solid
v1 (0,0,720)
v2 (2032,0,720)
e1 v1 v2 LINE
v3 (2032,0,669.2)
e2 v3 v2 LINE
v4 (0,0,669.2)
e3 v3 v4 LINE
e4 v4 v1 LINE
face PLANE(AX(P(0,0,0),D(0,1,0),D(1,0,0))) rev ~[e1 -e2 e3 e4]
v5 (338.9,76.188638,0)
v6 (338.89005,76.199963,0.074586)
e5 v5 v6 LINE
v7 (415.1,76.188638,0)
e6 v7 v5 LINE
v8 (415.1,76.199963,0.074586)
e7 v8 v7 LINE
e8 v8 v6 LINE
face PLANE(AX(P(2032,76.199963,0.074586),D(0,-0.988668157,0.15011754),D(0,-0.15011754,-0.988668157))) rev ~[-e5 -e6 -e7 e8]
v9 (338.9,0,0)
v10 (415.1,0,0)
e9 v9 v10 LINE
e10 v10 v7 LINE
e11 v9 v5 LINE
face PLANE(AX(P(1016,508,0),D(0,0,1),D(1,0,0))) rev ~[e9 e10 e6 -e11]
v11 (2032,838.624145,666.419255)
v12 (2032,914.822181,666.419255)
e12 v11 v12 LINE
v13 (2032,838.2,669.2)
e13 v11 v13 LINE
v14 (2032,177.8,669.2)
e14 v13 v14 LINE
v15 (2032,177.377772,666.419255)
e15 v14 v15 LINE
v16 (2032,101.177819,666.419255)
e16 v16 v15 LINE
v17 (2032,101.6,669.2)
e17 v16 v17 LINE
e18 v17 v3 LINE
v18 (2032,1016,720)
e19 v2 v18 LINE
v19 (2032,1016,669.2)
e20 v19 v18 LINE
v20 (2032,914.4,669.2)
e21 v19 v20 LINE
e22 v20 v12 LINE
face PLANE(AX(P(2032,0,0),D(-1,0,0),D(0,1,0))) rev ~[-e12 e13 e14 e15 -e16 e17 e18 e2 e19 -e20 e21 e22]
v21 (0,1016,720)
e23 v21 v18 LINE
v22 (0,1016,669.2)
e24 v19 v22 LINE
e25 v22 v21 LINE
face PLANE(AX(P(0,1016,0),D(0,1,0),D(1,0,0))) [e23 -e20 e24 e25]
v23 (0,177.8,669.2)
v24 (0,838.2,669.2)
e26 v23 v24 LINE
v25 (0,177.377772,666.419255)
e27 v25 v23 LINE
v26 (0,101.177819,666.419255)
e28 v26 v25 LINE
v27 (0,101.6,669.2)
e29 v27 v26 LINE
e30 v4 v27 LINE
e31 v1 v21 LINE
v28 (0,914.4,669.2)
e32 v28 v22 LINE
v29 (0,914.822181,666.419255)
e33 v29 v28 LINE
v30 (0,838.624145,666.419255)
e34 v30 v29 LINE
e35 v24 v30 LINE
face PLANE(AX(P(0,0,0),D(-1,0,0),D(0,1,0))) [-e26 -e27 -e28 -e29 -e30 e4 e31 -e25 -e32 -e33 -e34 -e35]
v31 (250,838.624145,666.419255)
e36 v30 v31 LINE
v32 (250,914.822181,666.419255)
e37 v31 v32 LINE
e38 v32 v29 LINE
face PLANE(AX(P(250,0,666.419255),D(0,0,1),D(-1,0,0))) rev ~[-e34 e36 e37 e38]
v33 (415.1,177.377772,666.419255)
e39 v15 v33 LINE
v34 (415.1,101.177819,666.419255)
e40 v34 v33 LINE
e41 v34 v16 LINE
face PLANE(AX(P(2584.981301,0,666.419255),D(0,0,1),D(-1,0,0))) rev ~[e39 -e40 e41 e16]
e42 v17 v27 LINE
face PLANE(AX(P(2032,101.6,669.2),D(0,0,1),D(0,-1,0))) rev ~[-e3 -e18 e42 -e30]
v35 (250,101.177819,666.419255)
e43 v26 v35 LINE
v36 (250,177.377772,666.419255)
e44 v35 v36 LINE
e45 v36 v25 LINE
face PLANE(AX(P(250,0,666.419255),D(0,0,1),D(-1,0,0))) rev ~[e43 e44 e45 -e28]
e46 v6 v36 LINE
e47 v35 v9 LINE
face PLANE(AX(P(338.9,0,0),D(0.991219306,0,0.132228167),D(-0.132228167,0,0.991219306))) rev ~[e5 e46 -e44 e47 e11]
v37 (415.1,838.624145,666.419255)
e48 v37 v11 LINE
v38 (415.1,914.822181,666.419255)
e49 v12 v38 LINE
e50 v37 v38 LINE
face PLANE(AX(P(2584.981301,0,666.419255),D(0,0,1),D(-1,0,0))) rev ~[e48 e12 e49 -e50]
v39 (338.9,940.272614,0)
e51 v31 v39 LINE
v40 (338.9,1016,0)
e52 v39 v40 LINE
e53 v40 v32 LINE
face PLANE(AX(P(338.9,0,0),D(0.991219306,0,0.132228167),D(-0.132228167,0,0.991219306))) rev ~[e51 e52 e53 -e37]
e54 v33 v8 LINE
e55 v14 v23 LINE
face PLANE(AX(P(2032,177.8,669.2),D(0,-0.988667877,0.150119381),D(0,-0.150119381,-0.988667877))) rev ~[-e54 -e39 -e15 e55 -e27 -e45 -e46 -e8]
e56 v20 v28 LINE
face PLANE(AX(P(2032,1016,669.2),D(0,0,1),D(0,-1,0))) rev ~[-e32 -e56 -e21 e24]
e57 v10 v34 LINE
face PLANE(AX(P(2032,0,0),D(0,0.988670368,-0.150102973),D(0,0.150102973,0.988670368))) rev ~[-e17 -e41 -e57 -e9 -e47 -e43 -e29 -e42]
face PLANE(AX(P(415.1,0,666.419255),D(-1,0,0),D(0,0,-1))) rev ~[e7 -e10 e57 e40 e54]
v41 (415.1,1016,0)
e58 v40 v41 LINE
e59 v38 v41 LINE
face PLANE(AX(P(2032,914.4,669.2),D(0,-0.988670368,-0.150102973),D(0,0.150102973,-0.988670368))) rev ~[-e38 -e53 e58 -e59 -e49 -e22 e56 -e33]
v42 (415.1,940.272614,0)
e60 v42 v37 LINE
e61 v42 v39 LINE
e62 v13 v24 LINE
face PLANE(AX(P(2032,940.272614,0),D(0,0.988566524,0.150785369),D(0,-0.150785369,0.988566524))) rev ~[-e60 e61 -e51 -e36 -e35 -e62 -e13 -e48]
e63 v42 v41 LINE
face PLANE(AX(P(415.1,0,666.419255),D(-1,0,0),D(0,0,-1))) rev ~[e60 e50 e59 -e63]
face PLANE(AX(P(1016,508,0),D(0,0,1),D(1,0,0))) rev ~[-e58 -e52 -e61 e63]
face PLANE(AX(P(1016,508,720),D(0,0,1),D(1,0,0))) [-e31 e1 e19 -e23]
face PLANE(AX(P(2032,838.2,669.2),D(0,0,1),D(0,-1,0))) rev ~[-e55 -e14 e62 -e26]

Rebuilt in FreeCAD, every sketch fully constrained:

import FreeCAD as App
import Part
import Sketcher
Q = App.Units.Quantity

doc = App.newDocument("Part")
body = doc.addObject("PartDesign::Body", "Body")

sketch1 = body.newObject("Sketcher::SketchObject", "Sketch")
sketch1.AttachmentSupport = (doc.getObject("XY_Plane"), [""])
sketch1.MapMode = "FlatFace"
sketch1.addGeometry(Part.LineSegment(App.Vector(0, 1016, 0), App.Vector(0, 0, 0)), False)
sketch1.addGeometry(Part.LineSegment(App.Vector(0, 0, 0), App.Vector(2032, 0, 0)), False)
sketch1.addGeometry(Part.LineSegment(App.Vector(2032, 0, 0), App.Vector(2032, 1016, 0)), False)
sketch1.addGeometry(Part.LineSegment(App.Vector(2032, 1016, 0), App.Vector(0, 1016, 0)), False)
sketch1.addConstraint(Sketcher.Constraint("Coincident", 0, 2, 1, 1))
sketch1.addConstraint(Sketcher.Constraint("Coincident", 1, 2, 2, 1))
sketch1.addConstraint(Sketcher.Constraint("Coincident", 2, 2, 3, 1))
sketch1.addConstraint(Sketcher.Constraint("Coincident", 3, 2, 0, 1))
sketch1.addConstraint(Sketcher.Constraint("Vertical", 0))
sketch1.addConstraint(Sketcher.Constraint("Horizontal", 1))
sketch1.addConstraint(Sketcher.Constraint("Vertical", 2))
sketch1.addConstraint(Sketcher.Constraint("Horizontal", 3))
sketch1.addConstraint(Sketcher.Constraint("Coincident", 0, 2, -1, 1))
sketch1.addConstraint(Sketcher.Constraint("DistanceX", 1, 1, 1, 2, Q("80 in")))
sketch1.addConstraint(Sketcher.Constraint("DistanceY", 0, 2, 0, 1, Q("40 in")))
pad1 = body.newObject("PartDesign::Pad", "Pad")
pad1.Profile = sketch1
pad1.Length = 720

sketch2 = body.newObject("Sketcher::SketchObject", "Sketch001")
sketch2.AttachmentSupport = (doc.getObject("YZ_Plane"), [""])
sketch2.MapMode = "FlatFace"
sketch2.AttachmentOffset = App.Placement(App.Vector(0, 0, 80 * 25.4), App.Rotation())
sketch2.addGeometry(Part.LineSegment(App.Vector(76.2, 0.07, 0), App.Vector(76.19, 0, 0)), False)
sketch2.addGeometry(Part.LineSegment(App.Vector(76.19, 0, 0), App.Vector(940.27, 0, 0)), False)
sketch2.addGeometry(Part.LineSegment(App.Vector(940.27, 0, 0), App.Vector(838.2, 669.2, 0)), False)
sketch2.addGeometry(Part.LineSegment(App.Vector(838.2, 669.2, 0), App.Vector(177.8, 669.2, 0)), False)
sketch2.addGeometry(Part.LineSegment(App.Vector(177.8, 669.2, 0), App.Vector(76.2, 0.07, 0)), False)
sketch2.addGeometry(Part.LineSegment(App.Vector(101.6, 669.2, 0), App.Vector(0, 669.2, 0)), False)
sketch2.addGeometry(Part.LineSegment(App.Vector(0, 669.2, 0), App.Vector(0, 0, 0)), False)
sketch2.addGeometry(Part.LineSegment(App.Vector(0, 0, 0), App.Vector(101.6, 669.2, 0)), False)
sketch2.addGeometry(Part.LineSegment(App.Vector(1016, 0, 0), App.Vector(1016, 669.2, 0)), False)
sketch2.addGeometry(Part.LineSegment(App.Vector(1016, 669.2, 0), App.Vector(914.4, 669.2, 0)), False)
sketch2.addGeometry(Part.LineSegment(App.Vector(914.4, 669.2, 0), App.Vector(1016, 0, 0)), False)
sketch2.addConstraint(Sketcher.Constraint("Coincident", 0, 2, 1, 1))
sketch2.addConstraint(Sketcher.Constraint("Coincident", 1, 2, 2, 1))
sketch2.addConstraint(Sketcher.Constraint("Coincident", 2, 2, 3, 1))
sketch2.addConstraint(Sketcher.Constraint("Coincident", 3, 2, 4, 1))
sketch2.addConstraint(Sketcher.Constraint("Coincident", 4, 2, 0, 1))
sketch2.addConstraint(Sketcher.Constraint("Coincident", 5, 2, 6, 1))
sketch2.addConstraint(Sketcher.Constraint("Coincident", 6, 2, 7, 1))
sketch2.addConstraint(Sketcher.Constraint("Coincident", 7, 2, 5, 1))
sketch2.addConstraint(Sketcher.Constraint("Coincident", 8, 2, 9, 1))
sketch2.addConstraint(Sketcher.Constraint("Coincident", 9, 2, 10, 1))
sketch2.addConstraint(Sketcher.Constraint("Coincident", 10, 2, 8, 1))
sketch2.addConstraint(Sketcher.Constraint("Horizontal", 1))
sketch2.addConstraint(Sketcher.Constraint("Horizontal", 3))
sketch2.addConstraint(Sketcher.Constraint("Horizontal", 5))
sketch2.addConstraint(Sketcher.Constraint("Vertical", 6))
sketch2.addConstraint(Sketcher.Constraint("Vertical", 8))
sketch2.addConstraint(Sketcher.Constraint("Horizontal", 9))
sketch2.addConstraint(Sketcher.Constraint("Coincident", 6, 2, -1, 1))
sketch2.addConstraint(Sketcher.Constraint("PointOnObject", 0, 2, -1))
sketch2.addConstraint(Sketcher.Constraint("PointOnObject", 10, 2, -1))
sketch2.addConstraint(Sketcher.Constraint("Parallel", 0, 4))
sketch2.addConstraint(Sketcher.Constraint("Horizontal", 3, 2, 5, 2))
sketch2.addConstraint(Sketcher.Constraint("Horizontal", 7, 2, 8, 2))
sketch2.addConstraint(Sketcher.Constraint("Equal", 5, 9))
sketch2.addConstraint(Sketcher.Constraint("DistanceX", 3, 2, 3, 1, Q("26 in")))
sketch2.addConstraint(Sketcher.Constraint("DistanceX", 5, 2, 5, 1, Q("4 in")))
sketch2.addConstraint(Sketcher.Constraint("DistanceX", -1, 1, 2, 2, Q("33 in")))
sketch2.addConstraint(Sketcher.Constraint("DistanceX", -1, 1, 8, 2, Q("40 in")))
sketch2.addConstraint(Sketcher.Constraint("DistanceY", 6, 2, 6, 1, Q("669.2 mm")))
sketch2.addConstraint(Sketcher.Constraint("Distance", 0, Q("0.075441 mm")))
sketch2.addConstraint(Sketcher.Constraint("DistanceX", 1, 1, 1, 2, Q("864.083976 mm")))
sketch2.addConstraint(Sketcher.Constraint("DistanceX", 0, 2, 7, 2, Q("25.411362 mm")))
pocket1 = body.newObject("PartDesign::Pocket", "Pocket")
pocket1.Profile = sketch2
pocket1.Length = Q("150 in")

sketch3 = body.newObject("Sketcher::SketchObject", "Sketch002")
sketch3.AttachmentSupport = (doc.getObject("XZ_Plane"), [""])
sketch3.MapMode = "FlatFace"
sketch3.addGeometry(Part.LineSegment(App.Vector(415, 0, 0), App.Vector(2585, 0, 0)), False)
sketch3.addGeometry(Part.LineSegment(App.Vector(2585, 0, 0), App.Vector(2585, 666, 0)), False)
sketch3.addGeometry(Part.LineSegment(App.Vector(2585, 666, 0), App.Vector(415, 666, 0)), False)
sketch3.addGeometry(Part.LineSegment(App.Vector(415, 666, 0), App.Vector(415, 0, 0)), False)
sketch3.addGeometry(Part.LineSegment(App.Vector(250, 666, 0), App.Vector(0, 666, 0)), False)
sketch3.addGeometry(Part.LineSegment(App.Vector(0, 666, 0), App.Vector(0, 0, 0)), False)
sketch3.addGeometry(Part.LineSegment(App.Vector(0, 0, 0), App.Vector(339, 0, 0)), False)
sketch3.addGeometry(Part.LineSegment(App.Vector(339, 0, 0), App.Vector(250, 666, 0)), False)
sketch3.addGeometry(Part.LineSegment(App.Vector(3000, 0, 0), App.Vector(3000, 666, 0)), False)
sketch3.addGeometry(Part.LineSegment(App.Vector(3000, 666, 0), App.Vector(2750, 666, 0)), False)
sketch3.addGeometry(Part.LineSegment(App.Vector(2750, 666, 0), App.Vector(2661, 0, 0)), False)
sketch3.addGeometry(Part.LineSegment(App.Vector(2661, 0, 0), App.Vector(3000, 0, 0)), False)
sketch3.addConstraint(Sketcher.Constraint("Coincident", 0, 2, 1, 1))
sketch3.addConstraint(Sketcher.Constraint("Coincident", 1, 2, 2, 1))
sketch3.addConstraint(Sketcher.Constraint("Coincident", 2, 2, 3, 1))
sketch3.addConstraint(Sketcher.Constraint("Coincident", 3, 2, 0, 1))
sketch3.addConstraint(Sketcher.Constraint("Coincident", 4, 2, 5, 1))
sketch3.addConstraint(Sketcher.Constraint("Coincident", 5, 2, 6, 1))
sketch3.addConstraint(Sketcher.Constraint("Coincident", 6, 2, 7, 1))
sketch3.addConstraint(Sketcher.Constraint("Coincident", 7, 2, 4, 1))
sketch3.addConstraint(Sketcher.Constraint("Coincident", 8, 2, 9, 1))
sketch3.addConstraint(Sketcher.Constraint("Coincident", 9, 2, 10, 1))
sketch3.addConstraint(Sketcher.Constraint("Coincident", 10, 2, 11, 1))
sketch3.addConstraint(Sketcher.Constraint("Coincident", 11, 2, 8, 1))
sketch3.addConstraint(Sketcher.Constraint("Horizontal", 0))
sketch3.addConstraint(Sketcher.Constraint("Horizontal", 2))
sketch3.addConstraint(Sketcher.Constraint("Vertical", 3))
sketch3.addConstraint(Sketcher.Constraint("Horizontal", 4))
sketch3.addConstraint(Sketcher.Constraint("Vertical", 5))
sketch3.addConstraint(Sketcher.Constraint("Horizontal", 6))
sketch3.addConstraint(Sketcher.Constraint("Vertical", 8))
sketch3.addConstraint(Sketcher.Constraint("Horizontal", 9))
sketch3.addConstraint(Sketcher.Constraint("Horizontal", 11))
sketch3.addConstraint(Sketcher.Constraint("Coincident", 5, 2, -1, 1))
sketch3.addConstraint(Sketcher.Constraint("PointOnObject", 0, 2, -1))
sketch3.addConstraint(Sketcher.Constraint("PointOnObject", 10, 2, -1))
sketch3.addConstraint(Sketcher.Constraint("Horizontal", 2, 2, 4, 2))
sketch3.addConstraint(Sketcher.Constraint("Horizontal", 7, 2, 8, 2))
sketch3.addConstraint(Sketcher.Constraint("Equal", 4, 9))
sketch3.addConstraint(Sketcher.Constraint("Equal", 7, 10))
sketch3.addConstraint(Sketcher.Constraint("Angle", 1, Q("89.999999 deg")))
sketch3.addConstraint(Sketcher.Constraint("DistanceX", 6, 2, 3, 2, Q("3 in")))
sketch3.addConstraint(Sketcher.Constraint("DistanceX", 0, 2, 10, 2, Q("3 in")))
sketch3.addConstraint(Sketcher.Constraint("DistanceX", 7, 2, 2, 2, Q("6.5 in")))
sketch3.addConstraint(Sketcher.Constraint("DistanceX", 2, 2, 2, 1, Q("2169.881301 mm")))
sketch3.addConstraint(Sketcher.Constraint("DistanceX", 4, 2, 4, 1, Q("250 mm")))
sketch3.addConstraint(Sketcher.Constraint("DistanceY", 3, 2, 3, 1, Q("666.419255 mm")))
pocket2 = body.newObject("PartDesign::Pocket", "Pocket001")
pocket2.Profile = sketch3
pocket2.Length = Q("45 in")

doc.recompute()
